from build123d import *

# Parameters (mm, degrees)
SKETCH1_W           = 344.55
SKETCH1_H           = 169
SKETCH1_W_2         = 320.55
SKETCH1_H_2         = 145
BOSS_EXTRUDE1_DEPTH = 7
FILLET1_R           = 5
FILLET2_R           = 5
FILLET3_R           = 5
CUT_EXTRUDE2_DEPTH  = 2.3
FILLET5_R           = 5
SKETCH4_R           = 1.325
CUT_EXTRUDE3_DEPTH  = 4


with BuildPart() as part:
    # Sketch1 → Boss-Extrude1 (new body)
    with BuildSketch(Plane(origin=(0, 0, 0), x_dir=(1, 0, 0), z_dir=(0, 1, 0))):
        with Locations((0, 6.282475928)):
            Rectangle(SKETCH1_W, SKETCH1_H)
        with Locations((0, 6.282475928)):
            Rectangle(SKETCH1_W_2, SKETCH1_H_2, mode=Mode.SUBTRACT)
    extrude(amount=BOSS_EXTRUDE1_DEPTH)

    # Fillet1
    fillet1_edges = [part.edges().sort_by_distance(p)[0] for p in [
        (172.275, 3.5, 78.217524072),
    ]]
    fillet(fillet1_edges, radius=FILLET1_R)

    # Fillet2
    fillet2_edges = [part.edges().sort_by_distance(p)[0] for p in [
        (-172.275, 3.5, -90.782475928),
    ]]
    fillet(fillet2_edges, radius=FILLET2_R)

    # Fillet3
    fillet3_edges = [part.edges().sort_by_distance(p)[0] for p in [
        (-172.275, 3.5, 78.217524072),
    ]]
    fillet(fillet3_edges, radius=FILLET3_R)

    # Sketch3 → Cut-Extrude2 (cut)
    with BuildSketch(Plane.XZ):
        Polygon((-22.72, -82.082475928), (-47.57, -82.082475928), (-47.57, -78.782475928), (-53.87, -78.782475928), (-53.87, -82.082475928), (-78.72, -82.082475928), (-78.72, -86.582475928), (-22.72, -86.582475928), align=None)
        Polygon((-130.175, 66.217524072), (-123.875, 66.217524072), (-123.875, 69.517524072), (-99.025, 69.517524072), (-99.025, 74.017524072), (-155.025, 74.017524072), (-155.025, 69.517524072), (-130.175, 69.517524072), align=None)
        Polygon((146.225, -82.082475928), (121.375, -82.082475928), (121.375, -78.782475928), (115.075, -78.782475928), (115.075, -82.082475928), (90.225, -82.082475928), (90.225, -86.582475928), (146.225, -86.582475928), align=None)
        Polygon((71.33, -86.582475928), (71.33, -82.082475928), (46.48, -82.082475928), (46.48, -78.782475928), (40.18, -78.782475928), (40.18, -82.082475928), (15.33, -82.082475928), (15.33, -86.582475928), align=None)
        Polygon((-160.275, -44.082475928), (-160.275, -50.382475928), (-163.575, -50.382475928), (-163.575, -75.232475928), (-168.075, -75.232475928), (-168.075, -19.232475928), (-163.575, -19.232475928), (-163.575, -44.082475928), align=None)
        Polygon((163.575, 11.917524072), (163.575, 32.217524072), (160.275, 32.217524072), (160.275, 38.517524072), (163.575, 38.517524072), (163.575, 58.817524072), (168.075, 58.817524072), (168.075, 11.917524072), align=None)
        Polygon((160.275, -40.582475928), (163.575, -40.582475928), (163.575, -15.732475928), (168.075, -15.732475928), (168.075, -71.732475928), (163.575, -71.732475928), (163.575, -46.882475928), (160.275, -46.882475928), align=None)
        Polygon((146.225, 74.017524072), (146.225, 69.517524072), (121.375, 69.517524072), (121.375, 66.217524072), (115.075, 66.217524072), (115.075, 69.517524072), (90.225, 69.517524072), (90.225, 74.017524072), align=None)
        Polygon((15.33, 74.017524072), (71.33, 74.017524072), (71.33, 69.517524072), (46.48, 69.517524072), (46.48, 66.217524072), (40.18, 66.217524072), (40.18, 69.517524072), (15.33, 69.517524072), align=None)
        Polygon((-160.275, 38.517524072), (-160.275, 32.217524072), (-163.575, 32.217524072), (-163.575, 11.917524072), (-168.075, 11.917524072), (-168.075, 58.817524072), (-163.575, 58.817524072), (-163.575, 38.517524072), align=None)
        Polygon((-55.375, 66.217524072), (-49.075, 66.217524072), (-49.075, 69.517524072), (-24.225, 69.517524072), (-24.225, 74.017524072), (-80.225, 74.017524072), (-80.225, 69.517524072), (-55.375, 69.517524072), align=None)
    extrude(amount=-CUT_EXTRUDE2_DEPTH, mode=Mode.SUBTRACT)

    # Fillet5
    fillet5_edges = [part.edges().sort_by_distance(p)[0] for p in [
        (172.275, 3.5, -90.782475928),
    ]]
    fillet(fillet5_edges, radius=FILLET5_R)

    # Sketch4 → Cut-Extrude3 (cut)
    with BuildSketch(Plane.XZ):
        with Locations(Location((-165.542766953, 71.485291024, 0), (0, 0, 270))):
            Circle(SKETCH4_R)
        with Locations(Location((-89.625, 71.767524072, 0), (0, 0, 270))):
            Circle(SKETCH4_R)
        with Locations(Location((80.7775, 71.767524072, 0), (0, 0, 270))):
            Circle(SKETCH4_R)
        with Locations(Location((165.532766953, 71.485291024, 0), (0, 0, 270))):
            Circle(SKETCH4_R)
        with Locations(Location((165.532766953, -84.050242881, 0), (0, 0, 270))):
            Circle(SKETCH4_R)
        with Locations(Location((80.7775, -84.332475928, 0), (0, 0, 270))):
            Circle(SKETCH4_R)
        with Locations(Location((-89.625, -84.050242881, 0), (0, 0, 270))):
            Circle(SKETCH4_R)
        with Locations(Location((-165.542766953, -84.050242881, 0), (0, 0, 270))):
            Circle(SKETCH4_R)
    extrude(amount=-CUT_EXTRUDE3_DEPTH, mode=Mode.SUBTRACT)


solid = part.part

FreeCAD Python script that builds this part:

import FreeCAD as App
import Part
import Sketcher
Q = App.Units.Quantity


def edges_at(feature, points):
    """Names of the edges that pass closest to the given points."""
    edges = feature.Shape.Edges
    near = lambda p: min(range(len(edges)), key=lambda i: edges[i].distToShape(Part.Vertex(*p))[0])
    return sorted({f"Edge{near(p) + 1}" for p in points})


def add_polygon(sketch, points):
    """Adds a closed chain of lines whose ends are joined by coincident constraints."""
    first, n = sketch.GeometryCount, len(points)
    for a, b in zip(points, points[1:] + points[:1]):
        sketch.addGeometry(Part.LineSegment(App.Vector(*a, 0), App.Vector(*b, 0)), False)
    for i in range(n):
        sketch.addConstraint(Sketcher.Constraint("Coincident", first + i, 2, first + (i + 1) % n, 1))

doc = App.newDocument("Part")
body = doc.addObject("PartDesign::Body", "Body")

# Sketch on XZ plane
sketch1 = body.newObject("Sketcher::SketchObject", "Sketch")
sketch1.AttachmentSupport = (doc.getObject("XZ_Plane"), [""])
sketch1.MapMode = "FlatFace"
add_polygon(sketch1, [(-172.275, -90.782476), (-172.275, 78.217524), (172.275, 78.217524), (172.275, -90.782476)])  # lines 0-3
add_polygon(sketch1, [(160.275, 66.217524), (-160.275, 66.217524), (-160.275, -78.782476), (160.275, -78.782476)])  # lines 4-7
sketch1.addConstraint([
    Sketcher.Constraint("Vertical", 0),
    Sketcher.Constraint("Horizontal", 1),
    Sketcher.Constraint("Vertical", 2),
    Sketcher.Constraint("Horizontal", 3),
    Sketcher.Constraint("Horizontal", 4),
    Sketcher.Constraint("Vertical", 5),
    Sketcher.Constraint("Horizontal", 6),
    Sketcher.Constraint("Vertical", 7),
    Sketcher.Constraint("DistanceY", 0, 1, 0, 2, Q("169 mm")),
    Sketcher.Constraint("DistanceY", 5, 2, 5, 1, Q("145 mm")),
    Sketcher.Constraint("DistanceX", 0, 2, 4, 2, Q("12 mm")),
    Sketcher.Constraint("DistanceY", 4, 2, 0, 2, Q("12 mm")),
    Sketcher.Constraint("DistanceX", 6, 2, 2, 2, Q("12 mm")),
    Sketcher.Constraint("DistanceX", 1, 1, 1, 2, Q("344.55 mm")),
    Sketcher.Constraint("DistanceX", 0, 2, -1, 1, Q("172.275 mm")),
    Sketcher.Constraint("DistanceY", -1, 1, 0, 2, Q("78.217524 mm")),
])
pad1 = body.newObject("PartDesign::Pad", "Pad")
pad1.Profile = sketch1
pad1.Length = 7
pad1.Reversed = True
doc.recompute()

fillet = body.newObject("PartDesign::Fillet", "Fillet")
fillet.Base = (pad1, edges_at(pad1, [(172.275, 3.5, 78.218)]))
fillet.Radius = 5
doc.recompute()

fillet2 = body.newObject("PartDesign::Fillet", "Fillet001")
fillet2.Base = (fillet, edges_at(fillet, [(-172.275, 3.5, -90.782)]))
fillet2.Radius = 5
doc.recompute()

fillet3 = body.newObject("PartDesign::Fillet", "Fillet002")
fillet3.Base = (fillet2, edges_at(fillet2, [(-172.275, 3.5, 78.218)]))
fillet3.Radius = 5

# Sketch on XZ plane
sketch2 = body.newObject("Sketcher::SketchObject", "Sketch001")
sketch2.AttachmentSupport = (doc.getObject("XZ_Plane"), [""])
sketch2.MapMode = "FlatFace"
add_polygon(sketch2, [(-22.72, -82.082476), (-47.57, -82.082476), (-47.57, -78.782476), (-53.87, -78.782476), (-53.87, -82.082476), (-78.72, -82.082476), (-78.72, -86.582476), (-22.72, -86.582476)])  # lines 0-7
add_polygon(sketch2, [(-130.175, 66.217524), (-123.875, 66.217524), (-123.875, 69.517524), (-99.025, 69.517524), (-99.025, 74.017524), (-155.025, 74.017524), (-155.025, 69.517524), (-130.175, 69.517524)])  # lines 8-15
add_polygon(sketch2, [(146.225, -82.082476), (121.375, -82.082476), (121.375, -78.782476), (115.075, -78.782476), (115.075, -82.082476), (90.225, -82.082476), (90.225, -86.582476), (146.225, -86.582476)])  # lines 16-23
add_polygon(sketch2, [(71.33, -86.582476), (71.33, -82.082476), (46.48, -82.082476), (46.48, -78.782476), (40.18, -78.782476), (40.18, -82.082476), (15.33, -82.082476), (15.33, -86.582476)])  # lines 24-31
add_polygon(sketch2, [(-160.275, -50.382476), (-160.275, -44.082476), (-163.575, -44.082476), (-163.575, -19.232476), (-168.075, -19.232476), (-168.075, -75.232476), (-163.575, -75.232476), (-163.575, -50.382476)])  # lines 32-39
add_polygon(sketch2, [(163.575, 32.217524), (163.575, 11.917524), (168.075, 11.917524), (168.075, 58.817524), (163.575, 58.817524), (163.575, 38.517524), (160.275, 38.517524), (160.275, 32.217524)])  # lines 40-47
add_polygon(sketch2, [(163.575, -40.582476), (160.275, -40.582476), (160.275, -46.882476), (163.575, -46.882476), (163.575, -71.732476), (168.075, -71.732476), (168.075, -15.732476), (163.575, -15.732476)])  # lines 48-55
add_polygon(sketch2, [(146.225, 69.517524), (146.225, 74.017524), (90.225, 74.017524), (90.225, 69.517524), (115.075, 69.517524), (115.075, 66.217524), (121.375, 66.217524), (121.375, 69.517524)])  # lines 56-63
add_polygon(sketch2, [(71.33, 74.017524), (15.33, 74.017524), (15.33, 69.517524), (40.18, 69.517524), (40.18, 66.217524), (46.48, 66.217524), (46.48, 69.517524), (71.33, 69.517524)])  # lines 64-71
add_polygon(sketch2, [(-160.275, 32.217524), (-160.275, 38.517524), (-163.575, 38.517524), (-163.575, 58.817524), (-168.075, 58.817524), (-168.075, 11.917524), (-163.575, 11.917524), (-163.575, 32.217524)])  # lines 72-79
add_polygon(sketch2, [(-55.375, 66.217524), (-49.075, 66.217524), (-49.075, 69.517524), (-24.225, 69.517524), (-24.225, 74.017524), (-80.225, 74.017524), (-80.225, 69.517524), (-55.375, 69.517524)])  # lines 80-87
sketch2.addConstraint([
    Sketcher.Constraint("Horizontal", 0),
    Sketcher.Constraint("Vertical", 1),
    Sketcher.Constraint("Horizontal", 2),
    Sketcher.Constraint("Vertical", 3),
    Sketcher.Constraint("Horizontal", 4),
    Sketcher.Constraint("Vertical", 5),
    Sketcher.Constraint("Horizontal", 6),
    Sketcher.Constraint("Vertical", 7),
    Sketcher.Constraint("Horizontal", 8),
    Sketcher.Constraint("Vertical", 9),
    Sketcher.Constraint("Horizontal", 10),
    Sketcher.Constraint("Vertical", 11),
    Sketcher.Constraint("Horizontal", 12),
    Sketcher.Constraint("Vertical", 13),
    Sketcher.Constraint("Horizontal", 14),
    Sketcher.Constraint("Vertical", 15),
    Sketcher.Constraint("Horizontal", 16),
    Sketcher.Constraint("Vertical", 17),
    Sketcher.Constraint("Horizontal", 18),
    Sketcher.Constraint("Vertical", 19),
    Sketcher.Constraint("Horizontal", 20),
    Sketcher.Constraint("Vertical", 21),
    Sketcher.Constraint("Horizontal", 22),
    Sketcher.Constraint("Vertical", 23),
    Sketcher.Constraint("Vertical", 24),
    Sketcher.Constraint("Horizontal", 25),
    Sketcher.Constraint("Vertical", 26),
    Sketcher.Constraint("Horizontal", 27),
    Sketcher.Constraint("Vertical", 28),
    Sketcher.Constraint("Horizontal", 29),
    Sketcher.Constraint("Vertical", 30),
    Sketcher.Constraint("Horizontal", 31),
    Sketcher.Constraint("Vertical", 32),
    Sketcher.Constraint("Horizontal", 33),
    Sketcher.Constraint("Vertical", 34),
    Sketcher.Constraint("Horizontal", 35),
    Sketcher.Constraint("Vertical", 36),
    Sketcher.Constraint("Horizontal", 37),
    Sketcher.Constraint("Vertical", 38),
    Sketcher.Constraint("Horizontal", 39),
    Sketcher.Constraint("Vertical", 40),
    Sketcher.Constraint("Horizontal", 41),
    Sketcher.Constraint("Vertical", 42),
    Sketcher.Constraint("Horizontal", 43),
    Sketcher.Constraint("Vertical", 44),
    Sketcher.Constraint("Horizontal", 45),
    Sketcher.Constraint("Vertical", 46),
    Sketcher.Constraint("Horizontal", 47),
    Sketcher.Constraint("Horizontal", 48),
    Sketcher.Constraint("Vertical", 49),
    Sketcher.Constraint("Horizontal", 50),
    Sketcher.Constraint("Vertical", 51),
    Sketcher.Constraint("Horizontal", 52),
    Sketcher.Constraint("Vertical", 53),
    Sketcher.Constraint("Horizontal", 54),
    Sketcher.Constraint("Vertical", 55),
    Sketcher.Constraint("Vertical", 56),
    Sketcher.Constraint("Horizontal", 57),
    Sketcher.Constraint("Vertical", 58),
    Sketcher.Constraint("Horizontal", 59),
    Sketcher.Constraint("Vertical", 60),
    Sketcher.Constraint("Horizontal", 61),
    Sketcher.Constraint("Vertical", 62),
    Sketcher.Constraint("Horizontal", 63),
    Sketcher.Constraint("Horizontal", 64),
    Sketcher.Constraint("Vertical", 65),
    Sketcher.Constraint("Horizontal", 66),
    Sketcher.Constraint("Vertical", 67),
    Sketcher.Constraint("Horizontal", 68),
    Sketcher.Constraint("Vertical", 69),
    Sketcher.Constraint("Horizontal", 70),
    Sketcher.Constraint("Vertical", 71),
    Sketcher.Constraint("Vertical", 72),
    Sketcher.Constraint("Horizontal", 73),
    Sketcher.Constraint("Vertical", 74),
    Sketcher.Constraint("Horizontal", 75),
    Sketcher.Constraint("Vertical", 76),
    Sketcher.Constraint("Horizontal", 77),
    Sketcher.Constraint("Vertical", 78),
    Sketcher.Constraint("Horizontal", 79),
    Sketcher.Constraint("Horizontal", 80),
    Sketcher.Constraint("Vertical", 81),
    Sketcher.Constraint("Horizontal", 82),
    Sketcher.Constraint("Vertical", 83),
    Sketcher.Constraint("Horizontal", 84),
    Sketcher.Constraint("Vertical", 85),
    Sketcher.Constraint("Horizontal", 86),
    Sketcher.Constraint("Vertical", 87),
    Sketcher.Constraint("Symmetric", 45, 2, 72, 2, -2),
    Sketcher.Constraint("Symmetric", 43, 2, 74, 2, -2),
    Sketcher.Constraint("Symmetric", 41, 2, 76, 2, -2),
    Sketcher.Constraint("Symmetric", 47, 2, 78, 2, -2),
    Sketcher.Constraint("Horizontal", 0, 2, 3, 2),
    Sketcher.Constraint("Horizontal", 10, 2, 13, 2),
    Sketcher.Constraint("Horizontal", 7, 2, 16, 2),
    Sketcher.Constraint("Horizontal", 2, 2, 17, 2),
    Sketcher.Constraint("Horizontal", 16, 2, 19, 2),
    Sketcher.Constraint("Horizontal", 6, 2, 21, 2),
    Sketcher.Constraint("Horizontal", 23, 2, 24, 2),
    Sketcher.Constraint("Horizontal", 18, 2, 26, 2),
    Sketcher.Constraint("Horizontal", 25, 2, 28, 2),
    Sketcher.Constraint("Horizontal", 22, 2, 30, 2),
    Sketcher.Constraint("Horizontal", 12, 2, 56, 2),
    Sketcher.Constraint("Horizontal", 14, 2, 58, 2),
    Sketcher.Constraint("Horizontal", 15, 2, 60, 2),
    Sketcher.Constraint("Horizontal", 59, 2, 62, 2),
    Sketcher.Constraint("Horizontal", 57, 2, 64, 2),
    Sketcher.Constraint("Horizontal", 63, 2, 65, 2),
    Sketcher.Constraint("Horizontal", 61, 2, 67, 2),
    Sketcher.Constraint("Horizontal", 66, 2, 69, 2),
    Sketcher.Constraint("Horizontal", 68, 2, 80, 2),
    Sketcher.Constraint("Horizontal", 70, 2, 81, 2),
    Sketcher.Constraint("Horizontal", 71, 2, 83, 2),
    Sketcher.Constraint("Horizontal", 82, 2, 85, 2),
    Sketcher.Constraint("Vertical", 34, 2, 37, 2),
    Sketcher.Constraint("Vertical", 40, 2, 43, 2),
    Sketcher.Constraint("Vertical", 46, 2, 48, 2),
    Sketcher.Constraint("Vertical", 47, 2, 50, 2),
    Sketcher.Constraint("Vertical", 42, 2, 52, 2),
    Sketcher.Constraint("Vertical", 51, 2, 54, 2),
    Sketcher.Constraint("Vertical", 23, 2, 56, 2),
    Sketcher.Constraint("Vertical", 21, 2, 57, 2),
    Sketcher.Constraint("Vertical", 19, 2, 59, 2),
    Sketcher.Constraint("Vertical", 17, 2, 61, 2),
    Sketcher.Constraint("Vertical", 30, 2, 64, 2),
    Sketcher.Constraint("Vertical", 28, 2, 66, 2),
    Sketcher.Constraint("Vertical", 26, 2, 68, 2),
    Sketcher.Constraint("Vertical", 31, 2, 70, 2),
    Sketcher.Constraint("Vertical", 39, 2, 72, 2),
    Sketcher.Constraint("Vertical", 38, 2, 73, 2),
    Sketcher.Constraint("Vertical", 36, 2, 75, 2),
    Sketcher.Constraint("Equal", 0, 4),
    Sketcher.Constraint("Equal", 2, 8),
    Sketcher.Constraint("Equal", 4, 10),
    Sketcher.Constraint("Equal", 6, 12),
    Sketcher.Constraint("Equal", 14, 16),
    Sketcher.Constraint("Equal", 8, 18),
    Sketcher.Constraint("Equal", 16, 20),
    Sketcher.Constraint("Equal", 20, 25),
    Sketcher.Constraint("Equal", 18, 27),
    Sketcher.Constraint("Equal", 25, 29),
    Sketcher.Constraint("Equal", 68, 80),
    Sketcher.Constraint("Equal", 70, 82),
    Sketcher.Constraint("Equal", 64, 84),
    Sketcher.Constraint("Equal", 79, 1),
    Sketcher.Constraint("Equal", 77, 5),
    Sketcher.Constraint("Equal", 3, 9),
    Sketcher.Constraint("Equal", 7, 11),
    Sketcher.Constraint("Equal", 80, 32),
    Sketcher.Constraint("Equal", 86, 34),
    Sketcher.Constraint("Equal", 84, 36),
    Sketcher.Constraint("Equal", 40, 44),
    Sketcher.Constraint("Equal", 32, 46),
    Sketcher.Constraint("Equal", 46, 49),
    Sketcher.Constraint("Equal", 38, 51),
    Sketcher.Constraint("Equal", 36, 53),
    Sketcher.Constraint("DistanceX", 6, 1, 6, 2, Q("56 mm")),
    Sketcher.Constraint("DistanceX", 2, 2, 2, 1, Q("6.3 mm")),
    Sketcher.Constraint("DistanceX", 33, 2, 33, 1, Q("3.3 mm")),
    Sketcher.Constraint("DistanceX", 35, 2, 35, 1, Q("4.5 mm")),
    Sketcher.Constraint("DistanceY", 40, 2, 40, 1, Q("20.3 mm")),
    Sketcher.Constraint("DistanceX", 0, 2, -1, 1, Q("47.57 mm")),
    Sketcher.Constraint("DistanceX", -1, 1, 24, 2, Q("71.33 mm")),
    Sketcher.Constraint("DistanceX", 8, 2, -1, 1, Q("123.875 mm")),
    Sketcher.Constraint("DistanceX", -1, 1, 16, 2, Q("121.375 mm")),
    Sketcher.Constraint("DistanceX", 32, 2, -1, 1, Q("160.275 mm")),
    Sketcher.Constraint("DistanceX", 80, 2, -1, 1, Q("49.075 mm")),
    Sketcher.Constraint("DistanceY", 0, 2, -1, 1, Q("82.082476 mm")),
    Sketcher.Constraint("DistanceY", -1, 1, 8, 2, Q("66.217524 mm")),
    Sketcher.Constraint("DistanceY", 32, 2, -1, 1, Q("44.082476 mm")),
    Sketcher.Constraint("DistanceY", -1, 1, 40, 2, Q("11.917524 mm")),
    Sketcher.Constraint("DistanceY", 48, 2, -1, 1, Q("40.582476 mm")),
])
pocket1 = body.newObject("PartDesign::Pocket", "Pocket")
pocket1.Profile = sketch2
pocket1.Length = 2.3
doc.recompute()

fillet4 = body.newObject("PartDesign::Fillet", "Fillet003")
fillet4.Base = (pocket1, edges_at(pocket1, [(172.275, 3.5, -90.782)]))
fillet4.Radius = 5

# Sketch on XZ plane
sketch3 = body.newObject("Sketcher::SketchObject", "Sketch002")
sketch3.AttachmentSupport = (doc.getObject("XZ_Plane"), [""])
sketch3.MapMode = "FlatFace"
sketch3.addGeometry([
    Part.Circle(App.Vector(-165.542767, 71.485291, 0), App.Vector(0, 0, 1), 1.325),  # 0
    Part.Circle(App.Vector(-89.625, 71.767524, 0), App.Vector(0, 0, 1), 1.325),  # 1
    Part.Circle(App.Vector(80.7775, 71.767524, 0), App.Vector(0, 0, 1), 1.325),  # 2
    Part.Circle(App.Vector(165.532767, 71.485291, 0), App.Vector(0, 0, 1), 1.325),  # 3
    Part.Circle(App.Vector(165.532767, -84.050243, 0), App.Vector(0, 0, 1), 1.325),  # 4
    Part.Circle(App.Vector(80.7775, -84.332476, 0), App.Vector(0, 0, 1), 1.325),  # 5
    Part.Circle(App.Vector(-89.625, -84.050243, 0), App.Vector(0, 0, 1), 1.325),  # 6
    Part.Circle(App.Vector(-165.542767, -84.050243, 0), App.Vector(0, 0, 1), 1.325),  # 7
], False)
sketch3.addConstraint([
    Sketcher.Constraint("Equal", 0, 1),
    Sketcher.Constraint("Equal", 1, 2),
    Sketcher.Constraint("Equal", 2, 3),
    Sketcher.Constraint("Equal", 3, 4),
    Sketcher.Constraint("Equal", 4, 5),
    Sketcher.Constraint("Equal", 5, 6),
    Sketcher.Constraint("Equal", 6, 7),
    Sketcher.Constraint("Horizontal", 1, 3, 2, 3),
    Sketcher.Constraint("Horizontal", 0, 3, 3, 3),
    Sketcher.Constraint("Horizontal", 4, 3, 6, 3),
    Sketcher.Constraint("Horizontal", 6, 3, 7, 3),
    Sketcher.Constraint("Vertical", 3, 3, 4, 3),
    Sketcher.Constraint("Vertical", 2, 3, 5, 3),
    Sketcher.Constraint("Vertical", 1, 3, 6, 3),
    Sketcher.Constraint("Vertical", 0, 3, 7, 3),
    Sketcher.Constraint("Diameter", 0, Q("2.65 mm")),
    Sketcher.Constraint("DistanceY", 5, 3, 2, 3, Q("156.1 mm")),
    Sketcher.Constraint("DistanceX", 1, 3, -1, 1, Q("89.625 mm")),
    Sketcher.Constraint("DistanceX", -1, 1, 2, 3, Q("80.7775 mm")),
    Sketcher.Constraint("DistanceY", -1, 1, 0, 3, Q("71.485291 mm")),
    Sketcher.Constraint("DistanceX", 0, 3, -1, 1, Q("165.542767 mm")),
    Sketcher.Constraint("DistanceY", -1, 1, 1, 3, Q("71.767524 mm")),
    Sketcher.Constraint("DistanceX", -1, 1, 3, 3, Q("165.532767 mm")),
    Sketcher.Constraint("DistanceY", 4, 3, -1, 1, Q("84.050243 mm")),
])
pocket2 = body.newObject("PartDesign::Pocket", "Pocket001")
pocket2.Profile = sketch3
pocket2.Length = 4

doc.recompute()
